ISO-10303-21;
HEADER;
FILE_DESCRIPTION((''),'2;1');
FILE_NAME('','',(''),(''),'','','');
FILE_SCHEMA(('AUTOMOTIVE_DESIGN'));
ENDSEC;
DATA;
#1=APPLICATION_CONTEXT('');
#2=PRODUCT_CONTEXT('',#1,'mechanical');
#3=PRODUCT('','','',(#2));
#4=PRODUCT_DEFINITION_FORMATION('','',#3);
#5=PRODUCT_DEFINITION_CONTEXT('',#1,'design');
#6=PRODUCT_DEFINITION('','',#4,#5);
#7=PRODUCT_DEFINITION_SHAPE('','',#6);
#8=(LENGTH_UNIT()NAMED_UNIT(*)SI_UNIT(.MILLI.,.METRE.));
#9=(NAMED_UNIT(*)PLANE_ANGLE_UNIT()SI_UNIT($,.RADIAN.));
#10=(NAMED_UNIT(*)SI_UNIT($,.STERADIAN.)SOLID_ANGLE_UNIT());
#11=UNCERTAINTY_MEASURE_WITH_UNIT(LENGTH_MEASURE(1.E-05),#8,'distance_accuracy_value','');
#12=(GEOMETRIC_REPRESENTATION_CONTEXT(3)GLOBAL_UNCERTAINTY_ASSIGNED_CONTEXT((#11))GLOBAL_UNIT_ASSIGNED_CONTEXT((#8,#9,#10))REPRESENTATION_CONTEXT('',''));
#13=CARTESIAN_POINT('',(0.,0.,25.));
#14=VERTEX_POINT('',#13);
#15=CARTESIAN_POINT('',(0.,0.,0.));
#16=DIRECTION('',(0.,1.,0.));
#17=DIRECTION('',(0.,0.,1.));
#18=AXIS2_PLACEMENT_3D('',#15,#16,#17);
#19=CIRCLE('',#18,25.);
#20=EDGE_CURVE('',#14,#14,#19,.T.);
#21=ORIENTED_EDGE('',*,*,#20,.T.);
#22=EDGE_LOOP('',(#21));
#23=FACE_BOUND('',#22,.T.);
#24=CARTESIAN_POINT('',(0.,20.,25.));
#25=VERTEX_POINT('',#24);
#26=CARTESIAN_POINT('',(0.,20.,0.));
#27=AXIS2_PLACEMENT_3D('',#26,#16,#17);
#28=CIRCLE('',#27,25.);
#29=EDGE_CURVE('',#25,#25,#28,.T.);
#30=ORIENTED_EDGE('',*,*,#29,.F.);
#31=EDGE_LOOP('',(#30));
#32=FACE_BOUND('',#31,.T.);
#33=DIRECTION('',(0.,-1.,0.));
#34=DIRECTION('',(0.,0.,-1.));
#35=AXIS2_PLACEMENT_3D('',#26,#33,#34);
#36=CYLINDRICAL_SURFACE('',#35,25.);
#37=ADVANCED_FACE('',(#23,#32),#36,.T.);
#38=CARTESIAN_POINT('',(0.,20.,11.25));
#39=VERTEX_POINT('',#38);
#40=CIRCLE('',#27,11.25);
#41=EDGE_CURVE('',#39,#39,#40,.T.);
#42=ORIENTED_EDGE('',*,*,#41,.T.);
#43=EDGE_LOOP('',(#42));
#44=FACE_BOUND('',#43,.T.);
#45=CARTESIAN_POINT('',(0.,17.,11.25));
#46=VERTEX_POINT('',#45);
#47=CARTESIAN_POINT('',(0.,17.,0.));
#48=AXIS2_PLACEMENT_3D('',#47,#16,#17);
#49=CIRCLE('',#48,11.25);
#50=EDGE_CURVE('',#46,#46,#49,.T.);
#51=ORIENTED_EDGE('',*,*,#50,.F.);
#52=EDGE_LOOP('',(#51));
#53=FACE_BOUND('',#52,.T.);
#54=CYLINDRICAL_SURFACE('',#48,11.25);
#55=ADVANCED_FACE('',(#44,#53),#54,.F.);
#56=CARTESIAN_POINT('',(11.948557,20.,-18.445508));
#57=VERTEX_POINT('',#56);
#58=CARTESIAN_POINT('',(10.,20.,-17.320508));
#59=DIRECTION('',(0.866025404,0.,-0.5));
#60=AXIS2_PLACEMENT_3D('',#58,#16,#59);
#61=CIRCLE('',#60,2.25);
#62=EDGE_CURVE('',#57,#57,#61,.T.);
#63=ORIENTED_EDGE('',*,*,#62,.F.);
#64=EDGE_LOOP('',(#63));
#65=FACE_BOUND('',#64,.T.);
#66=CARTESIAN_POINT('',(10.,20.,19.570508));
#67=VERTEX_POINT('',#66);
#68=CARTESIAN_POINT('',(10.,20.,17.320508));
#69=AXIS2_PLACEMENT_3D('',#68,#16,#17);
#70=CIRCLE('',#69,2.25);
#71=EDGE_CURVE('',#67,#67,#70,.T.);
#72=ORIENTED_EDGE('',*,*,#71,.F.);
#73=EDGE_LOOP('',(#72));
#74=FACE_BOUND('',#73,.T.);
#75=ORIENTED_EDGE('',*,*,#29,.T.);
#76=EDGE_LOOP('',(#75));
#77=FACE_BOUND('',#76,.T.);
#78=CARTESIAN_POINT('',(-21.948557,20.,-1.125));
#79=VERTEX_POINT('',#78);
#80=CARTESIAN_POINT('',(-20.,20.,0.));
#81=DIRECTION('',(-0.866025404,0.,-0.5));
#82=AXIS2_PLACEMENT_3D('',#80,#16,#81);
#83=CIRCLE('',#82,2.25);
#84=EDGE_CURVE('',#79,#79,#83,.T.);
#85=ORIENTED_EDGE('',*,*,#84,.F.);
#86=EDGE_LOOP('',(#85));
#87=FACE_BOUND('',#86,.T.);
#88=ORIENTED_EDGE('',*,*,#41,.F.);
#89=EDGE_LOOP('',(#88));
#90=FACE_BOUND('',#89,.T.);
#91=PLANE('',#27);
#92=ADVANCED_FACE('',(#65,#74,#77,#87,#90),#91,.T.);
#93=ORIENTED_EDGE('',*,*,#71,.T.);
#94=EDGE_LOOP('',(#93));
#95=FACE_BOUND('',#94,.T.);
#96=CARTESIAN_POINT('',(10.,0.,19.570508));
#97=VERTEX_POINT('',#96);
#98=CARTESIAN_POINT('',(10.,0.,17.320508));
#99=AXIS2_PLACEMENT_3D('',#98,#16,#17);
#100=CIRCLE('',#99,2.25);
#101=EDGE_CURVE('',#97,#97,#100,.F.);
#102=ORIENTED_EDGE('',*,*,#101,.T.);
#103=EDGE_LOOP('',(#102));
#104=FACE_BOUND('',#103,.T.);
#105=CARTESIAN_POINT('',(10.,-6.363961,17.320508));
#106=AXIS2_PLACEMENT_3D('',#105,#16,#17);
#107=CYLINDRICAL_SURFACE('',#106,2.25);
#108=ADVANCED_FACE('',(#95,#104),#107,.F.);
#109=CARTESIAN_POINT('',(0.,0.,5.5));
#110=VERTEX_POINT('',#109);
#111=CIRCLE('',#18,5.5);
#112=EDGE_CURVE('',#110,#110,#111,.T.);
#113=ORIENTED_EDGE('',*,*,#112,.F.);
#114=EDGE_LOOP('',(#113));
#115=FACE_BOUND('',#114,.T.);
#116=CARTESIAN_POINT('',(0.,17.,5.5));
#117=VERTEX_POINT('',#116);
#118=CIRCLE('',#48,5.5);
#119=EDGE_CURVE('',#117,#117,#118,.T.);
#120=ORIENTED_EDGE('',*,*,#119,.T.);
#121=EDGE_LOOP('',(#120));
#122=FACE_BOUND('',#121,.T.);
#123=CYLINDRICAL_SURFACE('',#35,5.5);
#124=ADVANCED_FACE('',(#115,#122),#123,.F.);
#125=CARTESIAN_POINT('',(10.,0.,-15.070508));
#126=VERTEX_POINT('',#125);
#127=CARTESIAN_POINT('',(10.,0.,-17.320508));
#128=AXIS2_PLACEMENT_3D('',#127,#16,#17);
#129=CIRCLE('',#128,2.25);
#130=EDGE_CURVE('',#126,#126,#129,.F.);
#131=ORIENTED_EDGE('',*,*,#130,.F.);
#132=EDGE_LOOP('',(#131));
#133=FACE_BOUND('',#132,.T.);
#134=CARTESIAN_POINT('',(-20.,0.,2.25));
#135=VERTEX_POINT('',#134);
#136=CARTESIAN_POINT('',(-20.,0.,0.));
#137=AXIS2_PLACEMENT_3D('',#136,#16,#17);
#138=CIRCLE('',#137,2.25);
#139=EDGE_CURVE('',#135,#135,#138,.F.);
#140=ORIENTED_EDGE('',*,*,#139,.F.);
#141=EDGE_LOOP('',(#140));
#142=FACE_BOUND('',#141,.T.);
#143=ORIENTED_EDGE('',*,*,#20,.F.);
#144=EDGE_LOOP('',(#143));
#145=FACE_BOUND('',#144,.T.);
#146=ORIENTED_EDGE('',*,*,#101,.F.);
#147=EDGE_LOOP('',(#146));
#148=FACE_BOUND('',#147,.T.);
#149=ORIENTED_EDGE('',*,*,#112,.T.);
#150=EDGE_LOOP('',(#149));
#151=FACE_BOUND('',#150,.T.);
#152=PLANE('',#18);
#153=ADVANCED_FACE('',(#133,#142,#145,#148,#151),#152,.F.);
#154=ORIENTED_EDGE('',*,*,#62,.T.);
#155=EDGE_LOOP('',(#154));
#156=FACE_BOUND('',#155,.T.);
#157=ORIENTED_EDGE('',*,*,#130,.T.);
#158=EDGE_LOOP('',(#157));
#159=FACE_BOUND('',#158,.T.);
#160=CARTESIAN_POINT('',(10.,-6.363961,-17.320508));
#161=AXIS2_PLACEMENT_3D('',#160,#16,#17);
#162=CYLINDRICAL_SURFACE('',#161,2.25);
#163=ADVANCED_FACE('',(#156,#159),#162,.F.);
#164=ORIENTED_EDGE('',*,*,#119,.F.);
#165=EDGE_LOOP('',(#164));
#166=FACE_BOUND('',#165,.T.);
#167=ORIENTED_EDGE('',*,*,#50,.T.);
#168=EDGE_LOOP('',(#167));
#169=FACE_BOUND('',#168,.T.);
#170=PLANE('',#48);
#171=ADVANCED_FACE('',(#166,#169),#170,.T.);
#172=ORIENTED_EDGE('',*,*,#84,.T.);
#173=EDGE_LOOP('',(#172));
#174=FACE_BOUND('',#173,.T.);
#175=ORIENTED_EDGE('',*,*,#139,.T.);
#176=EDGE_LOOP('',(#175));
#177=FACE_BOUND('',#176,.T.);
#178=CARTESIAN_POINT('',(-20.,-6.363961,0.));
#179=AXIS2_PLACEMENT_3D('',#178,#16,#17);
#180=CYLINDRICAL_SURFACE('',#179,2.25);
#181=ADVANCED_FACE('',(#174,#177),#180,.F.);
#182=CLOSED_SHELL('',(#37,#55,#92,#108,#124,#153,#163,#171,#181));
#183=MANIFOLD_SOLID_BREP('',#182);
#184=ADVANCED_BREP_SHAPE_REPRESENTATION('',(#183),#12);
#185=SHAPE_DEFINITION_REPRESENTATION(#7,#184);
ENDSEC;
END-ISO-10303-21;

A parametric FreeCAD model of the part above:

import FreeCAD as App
import Part
import Sketcher

V = App.Vector

doc = App.newDocument("Part")
body = doc.addObject("PartDesign::Body", "Body")

sketch1 = body.newObject("Sketcher::SketchObject", "Sketch")
sketch1.AttachmentSupport = (doc.getObject("XZ_Plane"), [""])
sketch1.MapMode = "FlatFace"
sketch1.addGeometry([
    Part.Circle(V(0, 0, 0), V(0, 0, 1), 25),
    Part.Circle(V(0, 0, 0), V(0, 0, 1), 5.5),
], False)
sketch1.addConstraint([
    Sketcher.Constraint("Coincident", 0, 3, -1, 1),
    Sketcher.Constraint("Coincident", 1, 3, -1, 1),
    Sketcher.Constraint("Diameter", 0, 50.0),
    Sketcher.Constraint("Diameter", 1, 11.0),
])
pad1 = body.newObject("PartDesign::Pad", "Pad")
pad1.Profile = sketch1
pad1.Length = 20
pad1.Reversed = True

sketch2 = body.newObject("Sketcher::SketchObject", "Sketch001")
sketch2.AttachmentSupport = (doc.getObject("XZ_Plane"), [""])
sketch2.MapMode = "FlatFace"
sketch2.AttachmentOffset = App.Placement(V(0, 0, -20), App.Rotation())
sketch2.addGeometry(Part.Circle(V(0, 0, 0), V(0, 0, 1), 11.25), False)
sketch2.addConstraint([
    Sketcher.Constraint("Coincident", 0, 3, -1, 1),
    Sketcher.Constraint("Diameter", 0, 22.5),
])
pocket1 = body.newObject("PartDesign::Pocket", "Pocket")
pocket1.Profile = sketch2
pocket1.Length = 3
pocket1.Reversed = True

sketch3 = body.newObject("Sketcher::SketchObject", "Sketch002")
sketch3.AttachmentSupport = (doc.getObject("XZ_Plane"), [""])
sketch3.MapMode = "FlatFace"
sketch3.AttachmentOffset = App.Placement(V(0, 0, -20), App.Rotation())
sketch3.addGeometry(Part.Circle(V(10, 17.320508, 0), V(0, 0, 1), 2.25), False)
sketch3.addConstraint([
    Sketcher.Constraint("Diameter", 0, 4.5),
    Sketcher.Constraint("DistanceX", -1, 1, 0, 3, 10.0),
    Sketcher.Constraint("DistanceY", -1, 1, 0, 3, 17.320508),
])
pocket2 = body.newObject("PartDesign::Pocket", "Pocket001")
pocket2.Profile = sketch3
pocket2.Length = 20
pocket2.Reversed = True
doc.recompute()

polarpattern = body.newObject("PartDesign::PolarPattern", "PolarPattern")
polarpattern.Originals = [pocket2]
polarpattern.Axis = (doc.getObject("Y_Axis"), [""])
polarpattern.Angle = 360
polarpattern.Occurrences = 3
body.Tip = polarpattern

doc.recompute()
